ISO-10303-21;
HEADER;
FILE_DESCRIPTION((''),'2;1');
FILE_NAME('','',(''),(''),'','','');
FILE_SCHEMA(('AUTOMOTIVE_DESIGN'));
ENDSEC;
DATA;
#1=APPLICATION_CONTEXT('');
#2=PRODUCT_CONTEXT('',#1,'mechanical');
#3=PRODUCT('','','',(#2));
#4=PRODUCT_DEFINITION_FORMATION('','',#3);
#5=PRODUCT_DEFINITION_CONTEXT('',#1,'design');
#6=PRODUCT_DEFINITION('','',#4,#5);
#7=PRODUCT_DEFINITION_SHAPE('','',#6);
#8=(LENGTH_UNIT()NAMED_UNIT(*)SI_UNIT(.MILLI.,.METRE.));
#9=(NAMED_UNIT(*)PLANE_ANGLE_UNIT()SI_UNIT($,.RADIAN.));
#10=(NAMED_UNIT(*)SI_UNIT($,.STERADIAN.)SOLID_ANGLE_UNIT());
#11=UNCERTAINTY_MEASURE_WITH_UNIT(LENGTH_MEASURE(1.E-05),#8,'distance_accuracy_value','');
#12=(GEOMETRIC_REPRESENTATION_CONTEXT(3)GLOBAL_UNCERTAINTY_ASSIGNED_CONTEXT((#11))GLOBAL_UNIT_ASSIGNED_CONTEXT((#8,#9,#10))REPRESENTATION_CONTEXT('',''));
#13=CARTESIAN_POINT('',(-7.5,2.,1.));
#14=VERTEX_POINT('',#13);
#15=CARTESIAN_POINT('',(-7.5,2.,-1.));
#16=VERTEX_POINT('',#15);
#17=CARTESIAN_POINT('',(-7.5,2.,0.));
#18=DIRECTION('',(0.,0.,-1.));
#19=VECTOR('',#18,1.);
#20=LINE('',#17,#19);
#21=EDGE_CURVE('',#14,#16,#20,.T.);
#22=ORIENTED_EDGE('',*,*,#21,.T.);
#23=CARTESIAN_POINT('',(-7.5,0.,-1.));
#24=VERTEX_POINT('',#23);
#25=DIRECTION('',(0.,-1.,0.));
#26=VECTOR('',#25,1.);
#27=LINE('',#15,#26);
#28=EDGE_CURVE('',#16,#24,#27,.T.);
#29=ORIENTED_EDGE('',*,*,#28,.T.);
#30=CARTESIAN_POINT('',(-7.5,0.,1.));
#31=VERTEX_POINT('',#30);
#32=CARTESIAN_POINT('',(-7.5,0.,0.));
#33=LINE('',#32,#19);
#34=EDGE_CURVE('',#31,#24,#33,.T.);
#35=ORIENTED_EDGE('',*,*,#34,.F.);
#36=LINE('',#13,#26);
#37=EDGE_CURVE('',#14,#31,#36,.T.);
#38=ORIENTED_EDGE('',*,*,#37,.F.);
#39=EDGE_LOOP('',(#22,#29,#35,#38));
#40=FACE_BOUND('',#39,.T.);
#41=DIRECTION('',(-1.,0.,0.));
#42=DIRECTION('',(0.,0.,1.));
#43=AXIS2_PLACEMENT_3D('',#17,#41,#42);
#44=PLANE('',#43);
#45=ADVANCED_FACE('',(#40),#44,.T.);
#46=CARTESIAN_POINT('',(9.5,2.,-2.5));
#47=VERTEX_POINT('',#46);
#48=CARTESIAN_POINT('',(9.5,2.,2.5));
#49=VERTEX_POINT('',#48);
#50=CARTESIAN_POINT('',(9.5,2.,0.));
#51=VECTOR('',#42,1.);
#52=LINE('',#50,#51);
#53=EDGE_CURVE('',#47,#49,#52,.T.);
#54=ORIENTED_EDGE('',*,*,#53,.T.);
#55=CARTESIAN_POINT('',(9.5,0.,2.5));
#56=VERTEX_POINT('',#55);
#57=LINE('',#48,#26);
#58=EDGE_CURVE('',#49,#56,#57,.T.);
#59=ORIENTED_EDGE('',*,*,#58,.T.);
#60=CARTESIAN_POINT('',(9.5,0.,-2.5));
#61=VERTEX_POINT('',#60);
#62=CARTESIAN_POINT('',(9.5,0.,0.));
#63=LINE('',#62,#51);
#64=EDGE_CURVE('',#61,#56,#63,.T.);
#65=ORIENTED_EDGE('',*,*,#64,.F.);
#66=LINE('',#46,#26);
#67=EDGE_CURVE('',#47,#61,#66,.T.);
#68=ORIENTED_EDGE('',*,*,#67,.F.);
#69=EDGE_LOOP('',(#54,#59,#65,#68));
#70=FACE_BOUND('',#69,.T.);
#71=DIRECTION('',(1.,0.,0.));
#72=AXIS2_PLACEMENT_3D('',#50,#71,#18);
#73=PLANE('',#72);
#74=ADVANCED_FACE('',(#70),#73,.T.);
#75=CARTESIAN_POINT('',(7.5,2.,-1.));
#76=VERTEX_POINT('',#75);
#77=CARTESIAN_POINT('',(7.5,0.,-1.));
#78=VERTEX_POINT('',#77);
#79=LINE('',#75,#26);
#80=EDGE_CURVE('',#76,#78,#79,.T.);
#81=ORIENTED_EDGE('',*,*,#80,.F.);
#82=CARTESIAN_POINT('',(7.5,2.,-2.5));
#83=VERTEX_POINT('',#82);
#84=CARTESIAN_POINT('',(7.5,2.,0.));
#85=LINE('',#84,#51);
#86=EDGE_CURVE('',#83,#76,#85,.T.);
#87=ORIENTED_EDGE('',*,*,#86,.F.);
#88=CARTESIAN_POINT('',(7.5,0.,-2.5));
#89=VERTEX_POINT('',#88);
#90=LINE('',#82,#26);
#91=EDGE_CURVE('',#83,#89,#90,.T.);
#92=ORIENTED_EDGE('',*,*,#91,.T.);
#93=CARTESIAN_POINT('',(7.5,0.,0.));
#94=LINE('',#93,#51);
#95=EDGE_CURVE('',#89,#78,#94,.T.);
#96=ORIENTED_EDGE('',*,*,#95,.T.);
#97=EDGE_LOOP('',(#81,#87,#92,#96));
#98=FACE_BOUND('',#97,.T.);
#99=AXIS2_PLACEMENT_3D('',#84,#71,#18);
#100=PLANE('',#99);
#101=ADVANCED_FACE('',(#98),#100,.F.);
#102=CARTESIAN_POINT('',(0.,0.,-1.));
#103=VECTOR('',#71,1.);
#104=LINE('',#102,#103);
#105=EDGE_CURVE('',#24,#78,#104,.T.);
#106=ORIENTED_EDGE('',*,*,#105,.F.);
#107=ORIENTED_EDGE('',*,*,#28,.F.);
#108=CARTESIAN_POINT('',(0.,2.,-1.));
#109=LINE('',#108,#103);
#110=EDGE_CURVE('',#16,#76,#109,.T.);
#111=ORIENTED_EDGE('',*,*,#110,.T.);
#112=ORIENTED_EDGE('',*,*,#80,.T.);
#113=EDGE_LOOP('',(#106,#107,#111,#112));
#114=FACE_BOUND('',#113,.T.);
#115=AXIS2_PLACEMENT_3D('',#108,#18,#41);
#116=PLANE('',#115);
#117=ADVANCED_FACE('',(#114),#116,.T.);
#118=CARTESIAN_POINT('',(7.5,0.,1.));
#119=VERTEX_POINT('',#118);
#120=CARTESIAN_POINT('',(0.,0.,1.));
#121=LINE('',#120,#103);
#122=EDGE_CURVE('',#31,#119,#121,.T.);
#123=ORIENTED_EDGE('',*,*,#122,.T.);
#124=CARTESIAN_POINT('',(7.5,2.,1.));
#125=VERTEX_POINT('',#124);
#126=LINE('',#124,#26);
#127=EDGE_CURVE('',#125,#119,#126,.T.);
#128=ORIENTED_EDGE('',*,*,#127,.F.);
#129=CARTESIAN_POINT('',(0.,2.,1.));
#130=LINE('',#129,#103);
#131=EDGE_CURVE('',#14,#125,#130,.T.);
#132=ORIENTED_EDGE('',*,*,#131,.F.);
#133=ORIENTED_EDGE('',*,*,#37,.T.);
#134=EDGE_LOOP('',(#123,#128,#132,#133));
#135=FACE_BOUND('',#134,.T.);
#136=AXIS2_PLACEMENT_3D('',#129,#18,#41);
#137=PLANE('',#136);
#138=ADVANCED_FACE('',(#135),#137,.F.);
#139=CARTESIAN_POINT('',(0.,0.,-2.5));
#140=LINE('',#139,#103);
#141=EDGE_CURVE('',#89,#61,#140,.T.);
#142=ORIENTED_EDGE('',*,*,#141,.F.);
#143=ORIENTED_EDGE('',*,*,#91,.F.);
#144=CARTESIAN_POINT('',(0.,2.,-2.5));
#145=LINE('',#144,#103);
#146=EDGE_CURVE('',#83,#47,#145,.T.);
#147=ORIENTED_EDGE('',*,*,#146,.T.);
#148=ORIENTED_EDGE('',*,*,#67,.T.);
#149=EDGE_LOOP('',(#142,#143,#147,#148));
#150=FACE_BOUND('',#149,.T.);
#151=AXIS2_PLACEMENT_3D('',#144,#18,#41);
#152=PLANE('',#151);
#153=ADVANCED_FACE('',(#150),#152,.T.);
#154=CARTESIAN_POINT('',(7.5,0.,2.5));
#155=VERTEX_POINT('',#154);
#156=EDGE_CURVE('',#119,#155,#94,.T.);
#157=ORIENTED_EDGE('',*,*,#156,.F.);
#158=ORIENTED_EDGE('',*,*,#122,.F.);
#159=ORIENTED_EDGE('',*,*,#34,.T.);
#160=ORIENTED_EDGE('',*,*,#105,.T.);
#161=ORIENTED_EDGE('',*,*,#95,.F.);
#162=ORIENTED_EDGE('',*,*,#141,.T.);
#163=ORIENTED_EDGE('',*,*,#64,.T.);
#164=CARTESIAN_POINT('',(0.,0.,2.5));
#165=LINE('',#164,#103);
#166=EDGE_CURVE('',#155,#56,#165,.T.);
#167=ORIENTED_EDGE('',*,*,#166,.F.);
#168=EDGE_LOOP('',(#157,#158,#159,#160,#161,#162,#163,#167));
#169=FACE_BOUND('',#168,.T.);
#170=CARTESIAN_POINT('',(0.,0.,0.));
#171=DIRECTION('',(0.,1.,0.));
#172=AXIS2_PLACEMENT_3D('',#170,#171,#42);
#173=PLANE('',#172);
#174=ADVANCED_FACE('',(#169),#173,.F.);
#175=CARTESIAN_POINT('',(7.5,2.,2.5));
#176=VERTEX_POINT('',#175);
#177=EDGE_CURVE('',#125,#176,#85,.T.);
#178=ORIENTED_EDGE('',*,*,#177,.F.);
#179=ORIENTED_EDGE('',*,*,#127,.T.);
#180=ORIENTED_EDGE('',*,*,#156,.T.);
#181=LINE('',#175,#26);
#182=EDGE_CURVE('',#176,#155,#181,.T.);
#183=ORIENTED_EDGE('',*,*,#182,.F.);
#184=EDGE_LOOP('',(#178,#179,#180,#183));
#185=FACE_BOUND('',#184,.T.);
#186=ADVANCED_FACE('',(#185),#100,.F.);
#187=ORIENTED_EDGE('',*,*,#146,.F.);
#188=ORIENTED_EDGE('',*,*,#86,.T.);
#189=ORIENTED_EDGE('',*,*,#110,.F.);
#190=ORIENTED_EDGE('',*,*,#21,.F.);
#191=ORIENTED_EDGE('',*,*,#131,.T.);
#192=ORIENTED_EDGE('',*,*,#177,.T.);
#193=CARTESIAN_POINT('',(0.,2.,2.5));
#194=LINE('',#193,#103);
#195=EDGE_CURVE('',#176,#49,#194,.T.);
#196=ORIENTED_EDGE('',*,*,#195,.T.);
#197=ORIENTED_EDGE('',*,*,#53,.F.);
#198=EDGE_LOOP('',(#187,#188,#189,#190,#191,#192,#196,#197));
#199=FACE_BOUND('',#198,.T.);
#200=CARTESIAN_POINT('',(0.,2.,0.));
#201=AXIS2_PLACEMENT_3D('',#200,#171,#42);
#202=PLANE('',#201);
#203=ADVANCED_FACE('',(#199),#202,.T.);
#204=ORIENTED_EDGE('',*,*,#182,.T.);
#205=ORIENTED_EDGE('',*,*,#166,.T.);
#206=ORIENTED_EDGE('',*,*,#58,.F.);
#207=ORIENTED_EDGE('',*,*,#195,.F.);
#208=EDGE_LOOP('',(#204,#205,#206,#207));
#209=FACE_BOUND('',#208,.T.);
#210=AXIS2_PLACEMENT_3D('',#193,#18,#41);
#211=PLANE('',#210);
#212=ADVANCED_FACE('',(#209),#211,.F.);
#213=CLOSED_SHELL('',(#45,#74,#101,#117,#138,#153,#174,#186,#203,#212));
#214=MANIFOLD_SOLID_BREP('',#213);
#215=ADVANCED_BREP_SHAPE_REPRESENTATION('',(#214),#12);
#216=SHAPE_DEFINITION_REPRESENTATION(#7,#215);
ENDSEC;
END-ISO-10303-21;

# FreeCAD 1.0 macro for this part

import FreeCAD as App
import Part
import Sketcher
Q = App.Units.Quantity


def add_polygon(sketch, points):
    """Adds a closed chain of lines whose ends are joined by coincident constraints."""
    first, n = sketch.GeometryCount, len(points)
    for a, b in zip(points, points[1:] + points[:1]):
        sketch.addGeometry(Part.LineSegment(App.Vector(*a, 0), App.Vector(*b, 0)), False)
    for i in range(n):
        sketch.addConstraint(Sketcher.Constraint("Coincident", first + i, 2, first + (i + 1) % n, 1))

doc = App.newDocument("Part")
body = doc.addObject("PartDesign::Body", "Body")

# Sketch on XZ plane
sketch1 = body.newObject("Sketcher::SketchObject", "Sketch")
sketch1.AttachmentSupport = (doc.getObject("XZ_Plane"), [""])
sketch1.MapMode = "FlatFace"
add_polygon(sketch1, [(-7.5, -1), (-7.5, 1), (7.5, 1), (7.5, 2.5), (9.5, 2.5), (9.5, -2.5), (7.5, -2.5), (7.5, -1)])  # lines 0-7
sketch1.addConstraint(Sketcher.Constraint("Vertical", 0))
sketch1.addConstraint(Sketcher.Constraint("Horizontal", 1))
sketch1.addConstraint(Sketcher.Constraint("Vertical", 2))
sketch1.addConstraint(Sketcher.Constraint("Horizontal", 3))
sketch1.addConstraint(Sketcher.Constraint("Vertical", 4))
sketch1.addConstraint(Sketcher.Constraint("Horizontal", 5))
sketch1.addConstraint(Sketcher.Constraint("Vertical", 6))
sketch1.addConstraint(Sketcher.Constraint("Horizontal", 7))
sketch1.addConstraint(Sketcher.Constraint("Symmetric", 0, 2, 6, 2, -1, 1))
sketch1.addConstraint(Sketcher.Constraint("Symmetric", 2, 2, 5, 2, -1))
sketch1.addConstraint(Sketcher.Constraint("Equal", 5, 0))
sketch1.addConstraint(Sketcher.Constraint("DistanceX", 1, 1, 1, 2, Q("15 mm")))
sketch1.addConstraint(Sketcher.Constraint("DistanceX", 3, 1, 3, 2, Q("2 mm")))
sketch1.addConstraint(Sketcher.Constraint("DistanceY", 4, 2, 4, 1, Q("5 mm")))
pad1 = body.newObject("PartDesign::Pad", "Pad")
pad1.Profile = sketch1
pad1.Length = 2
pad1.Reversed = True

doc.recompute()
